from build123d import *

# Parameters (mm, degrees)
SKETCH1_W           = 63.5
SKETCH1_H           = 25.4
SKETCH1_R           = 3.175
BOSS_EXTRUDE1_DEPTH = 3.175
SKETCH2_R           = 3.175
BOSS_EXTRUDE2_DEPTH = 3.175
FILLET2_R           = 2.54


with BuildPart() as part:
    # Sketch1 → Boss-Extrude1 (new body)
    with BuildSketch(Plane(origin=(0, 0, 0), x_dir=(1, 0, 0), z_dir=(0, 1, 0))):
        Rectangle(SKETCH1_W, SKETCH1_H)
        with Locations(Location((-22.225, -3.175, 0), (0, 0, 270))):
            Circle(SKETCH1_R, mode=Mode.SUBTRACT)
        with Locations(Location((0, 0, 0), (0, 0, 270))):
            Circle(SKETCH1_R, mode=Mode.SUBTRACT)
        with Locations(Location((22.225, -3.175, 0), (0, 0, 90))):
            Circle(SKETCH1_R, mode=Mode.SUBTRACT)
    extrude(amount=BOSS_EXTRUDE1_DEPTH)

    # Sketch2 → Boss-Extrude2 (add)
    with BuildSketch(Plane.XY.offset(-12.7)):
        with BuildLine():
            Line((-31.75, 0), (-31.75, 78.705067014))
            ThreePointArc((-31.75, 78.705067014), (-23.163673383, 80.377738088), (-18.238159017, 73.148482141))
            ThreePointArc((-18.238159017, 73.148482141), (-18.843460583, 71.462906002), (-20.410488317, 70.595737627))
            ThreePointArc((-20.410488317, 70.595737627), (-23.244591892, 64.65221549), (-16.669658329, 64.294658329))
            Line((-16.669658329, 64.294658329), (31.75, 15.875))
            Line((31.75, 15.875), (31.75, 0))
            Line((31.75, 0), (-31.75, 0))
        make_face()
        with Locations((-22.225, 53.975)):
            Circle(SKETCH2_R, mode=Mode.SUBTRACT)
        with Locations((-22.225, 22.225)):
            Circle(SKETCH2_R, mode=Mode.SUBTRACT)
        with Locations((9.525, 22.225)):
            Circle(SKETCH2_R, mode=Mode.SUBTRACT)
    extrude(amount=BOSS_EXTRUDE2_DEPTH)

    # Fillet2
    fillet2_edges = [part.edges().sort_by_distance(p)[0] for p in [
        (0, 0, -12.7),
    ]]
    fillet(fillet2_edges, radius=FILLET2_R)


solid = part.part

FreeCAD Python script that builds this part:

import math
import FreeCAD as App
import Part
import Sketcher

V = App.Vector
Q = App.Units.Quantity


def edges_at(feature, points):
    """Names of the edges that pass closest to the given points."""
    edges = feature.Shape.Edges
    near = lambda p: min(range(len(edges)), key=lambda i: edges[i].distToShape(Part.Vertex(*p))[0])
    return sorted({f"Edge{near(p) + 1}" for p in points})


def add_polygon(sketch, points):
    """Adds a closed chain of lines whose ends are joined by coincident constraints."""
    first, n = sketch.GeometryCount, len(points)
    for a, b in zip(points, points[1:] + points[:1]):
        sketch.addGeometry(Part.LineSegment(App.Vector(*a, 0), App.Vector(*b, 0)), False)
    for i in range(n):
        sketch.addConstraint(Sketcher.Constraint("Coincident", first + i, 2, first + (i + 1) % n, 1))

doc = App.newDocument("Part")
body = doc.addObject("PartDesign::Body", "Body")

# Sketch on XZ plane
sketch1 = doc.addObject("Sketcher::SketchObject", "Sketch")
body.addObject(sketch1)
sketch1.AttachmentSupport = (doc.XZ_Plane, [""])
sketch1.MapMode = "FlatFace"
add_polygon(sketch1, [(-31.8, -12.7), (-31.8, 12.7), (31.8, 12.7), (31.8, -12.7)])  # lines 0-3
sketch1.addGeometry(Part.Circle(V(-22.2, 3.2, 0), V(0, 0, 1), 3.2), False)  # 4
sketch1.addGeometry(Part.Circle(V(22.2, 3.2, 0), V(0, 0, 1), 3.2), False)  # 5
sketch1.addGeometry(Part.Circle(V(0, 0, 0), V(0, 0, 1), 3.2), False)  # 6
sketch1.addConstraint([
    Sketcher.Constraint("Vertical", 0),
    Sketcher.Constraint("Horizontal", 1),
    Sketcher.Constraint("Vertical", 2),
    Sketcher.Constraint("Horizontal", 3),
    Sketcher.Constraint("Coincident", 6, 3, -1, 1),
    Sketcher.Constraint("Equal", 4, 5),
    Sketcher.Constraint("Equal", 5, 6),
    Sketcher.Constraint("Symmetric", 0, 2, 2, 2, -1, 1),
    Sketcher.Constraint("Symmetric", 4, 3, 5, 3, -2),
    Sketcher.Constraint("Diameter", 4, Q("0.25 in")),
    Sketcher.Constraint("DistanceY", 0, 1, 0, 2, Q("1 in")),
    Sketcher.Constraint("DistanceX", 1, 1, 1, 2, Q("2.5 in")),
    Sketcher.Constraint("DistanceX", 4, 3, 5, 3, Q("1.75 in")),
    Sketcher.Constraint("DistanceY", -1, 1, 4, 3, Q("0.125 in")),
])
pad1 = doc.addObject("PartDesign::Pad", "Pad")
body.addObject(pad1)
pad1.Profile = sketch1
pad1.Length = Q("0.125 in")
pad1.Reversed = True

# Sketch on XY plane
sketch2 = doc.addObject("Sketcher::SketchObject", "Sketch001")
body.addObject(sketch2)
sketch2.AttachmentSupport = (doc.XY_Plane, [""])
sketch2.MapMode = "FlatFace"
sketch2.AttachmentOffset = App.Placement(V(0, 0, -0.5 * 25.4), App.Rotation())
sketch2.addGeometry([
    Part.LineSegment(V(-31.8, 78.7, 0), V(-31.8, 0, 0)),  # 0
    Part.LineSegment(V(-31.8, 0, 0), V(31.8, 0, 0)),  # 1
    Part.LineSegment(V(31.8, 0, 0), V(31.8, 15.9, 0)),  # 2
    Part.LineSegment(V(31.8, 15.9, 0), V(-16.7, 64.3, 0)),  # 3
    Part.ArcOfCircle(Part.Circle(V(-19.8, 66.7, 0), V(0, 0, 1), 4), math.radians(98), math.radians(323)),  # 4
    Part.ArcOfCircle(Part.Circle(V(-20.8, 73.1, 0), V(0, 0, 1), 2.5), math.radians(-82), math.radians(1)),  # 5
    Part.ArcOfCircle(Part.Circle(V(-26.2, 73, 0), V(0, 0, 1), 8), math.radians(1), math.radians(134)),  # 6
    Part.Circle(V(9.5, 22.2, 0), V(0, 0, 1), 3.2),  # 7
    Part.Circle(V(-22.2, 22.2, 0), V(0, 0, 1), 3.2),  # 8
    Part.Circle(V(-22.2, 54, 0), V(0, 0, 1), 3.2),  # 9
], False)
sketch2.addConstraint([
    Sketcher.Constraint("Coincident", 0, 2, 1, 1),
    Sketcher.Constraint("Coincident", 1, 2, 2, 1),
    Sketcher.Constraint("Coincident", 2, 2, 3, 1),
    Sketcher.Constraint("Coincident", 3, 2, 4, 2),
    Sketcher.Constraint("Tangent", 4, 1, 5, 1),
    Sketcher.Constraint("Tangent", 5, 2, 6, 1),
    Sketcher.Constraint("Coincident", 6, 2, 0, 1),
    Sketcher.Constraint("Vertical", 0),
    Sketcher.Constraint("Horizontal", 1),
    Sketcher.Constraint("Vertical", 2),
    Sketcher.Constraint("Equal", 7, 8),
    Sketcher.Constraint("Equal", 8, 9),
    Sketcher.Constraint("Symmetric", 0, 2, 1, 2, -1, 1),
    Sketcher.Constraint("Horizontal", 7, 3, 8, 3),
    Sketcher.Constraint("Vertical", 8, 3, 9, 3),
    Sketcher.Constraint("Radius", 5, Q("0.1 in")),
    Sketcher.Constraint("Diameter", 7, Q("0.25 in")),
    Sketcher.Constraint("DistanceX", 1, 1, 1, 2, Q("2.5 in")),
    Sketcher.Constraint("Angle", 3, Q("135 deg")),
    Sketcher.Constraint("Radius", 4, Q("0.156 in")),
    Sketcher.Constraint("Radius", 6, Q("0.313 in")),
    Sketcher.Constraint("DistanceY", 7, 3, 6, 3, Q("2 in")),
    Sketcher.Constraint("DistanceY", 9, 3, 4, 3, Q("0.5 in")),
    Sketcher.Constraint("DistanceY", 2, 2, 9, 3, Q("1.5 in")),
    Sketcher.Constraint("DistanceY", 2, 1, 2, 2, Q("0.625 in")),
    Sketcher.Constraint("DistanceX", 6, 3, 4, 3, Q("0.25 in")),
    Sketcher.Constraint("DistanceY", 4, 3, 6, 3, Q("0.25 in")),
    Sketcher.Constraint("DistanceX", 8, 3, 7, 3, Q("1.25 in")),
    Sketcher.Constraint("DistanceX", 4, 3, -1, 1, Q("0.781 in")),
    Sketcher.Constraint("DistanceX", -1, 1, 7, 3, Q("0.375 in")),
])
pad2 = doc.addObject("PartDesign::Pad", "Pad001")
body.addObject(pad2)
pad2.Profile = sketch2
pad2.Length = Q("0.125 in")
doc.recompute()

fillet = doc.addObject("PartDesign::Fillet", "Fillet")
body.addObject(fillet)
fillet.Base = (pad2, edges_at(pad2, [(0, 0, -12.7)]))
fillet.Radius = Q("0.1 in")

doc.recompute()
